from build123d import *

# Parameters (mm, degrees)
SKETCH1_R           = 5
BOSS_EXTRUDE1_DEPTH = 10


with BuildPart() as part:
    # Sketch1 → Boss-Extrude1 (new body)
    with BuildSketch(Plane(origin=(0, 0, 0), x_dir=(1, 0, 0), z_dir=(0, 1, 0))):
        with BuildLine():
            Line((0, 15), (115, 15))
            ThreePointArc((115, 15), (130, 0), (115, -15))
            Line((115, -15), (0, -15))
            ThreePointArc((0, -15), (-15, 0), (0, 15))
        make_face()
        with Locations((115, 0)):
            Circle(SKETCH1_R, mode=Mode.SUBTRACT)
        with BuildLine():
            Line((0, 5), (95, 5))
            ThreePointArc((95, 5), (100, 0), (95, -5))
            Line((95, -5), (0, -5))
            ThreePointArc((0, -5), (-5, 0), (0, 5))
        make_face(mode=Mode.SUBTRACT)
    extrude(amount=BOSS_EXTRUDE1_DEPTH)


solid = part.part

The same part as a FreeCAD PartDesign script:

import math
import FreeCAD as App
import Part
import Sketcher
from FreeCAD import Vector

doc = App.newDocument("Part")
params = doc.addObject("Spreadsheet::Sheet", "Params")
for row, (alias, value) in enumerate([
    ("sketch1_diameter", "10 mm"),
    ("sketch1_radius", "15 mm"),
    ("sketch1_width", "115 mm"),
    ("sketch1_width2", "95 mm"),
    ("pad1_length", "10 mm"),
], start=1):
    params.set(f"A{row}", alias)
    params.set(f"B{row}", "=" + value)
    params.setAlias(f"B{row}", alias)

body = doc.addObject("PartDesign::Body", "Body")

sketch1 = body.newObject("Sketcher::SketchObject", "Sketch")
sketch1.AttachmentSupport = (doc.getObject("XZ_Plane"), [""])
sketch1.MapMode = "FlatFace"
sketch1.addGeometry([
    Part.LineSegment(Vector(115, -15, 0), Vector(0, -15, 0)),
    Part.ArcOfCircle(Part.Circle(Vector(0, 0, 0), Vector(0, 0, 1), 15), math.radians(90), math.radians(270)),
    Part.LineSegment(Vector(0, 15, 0), Vector(115, 15, 0)),
    Part.ArcOfCircle(Part.Circle(Vector(115, 0, 0), Vector(0, 0, 1), 15), math.radians(-90), math.radians(90)),
    Part.Circle(Vector(115, 0, 0), Vector(0, 0, 1), 5),
    Part.LineSegment(Vector(0, -5, 0), Vector(95, -5, 0)),
    Part.ArcOfCircle(Part.Circle(Vector(95, 0, 0), Vector(0, 0, 1), 5), math.radians(-90), math.radians(90)),
    Part.LineSegment(Vector(95, 5, 0), Vector(0, 5, 0)),
    Part.ArcOfCircle(Part.Circle(Vector(0, 0, 0), Vector(0, 0, 1), 5), math.radians(90), math.radians(270)),
], False)
sketch1.addConstraint([
    Sketcher.Constraint("Tangent", 0, 2, 1, 2),
    Sketcher.Constraint("Tangent", 1, 1, 2, 1),
    Sketcher.Constraint("Tangent", 2, 2, 3, 2),
    Sketcher.Constraint("Tangent", 3, 1, 0, 1),
    Sketcher.Constraint("Tangent", 5, 2, 6, 1),
    Sketcher.Constraint("Tangent", 6, 2, 7, 1),
    Sketcher.Constraint("Tangent", 7, 2, 8, 1),
    Sketcher.Constraint("Tangent", 8, 2, 5, 1),
    Sketcher.Constraint("Horizontal", 0),
    Sketcher.Constraint("Horizontal", 2),
    Sketcher.Constraint("Horizontal", 5),
    Sketcher.Constraint("Horizontal", 7),
    Sketcher.Constraint("Coincident", 1, 3, -1, 1),
    Sketcher.Constraint("Coincident", 8, 3, -1, 1),
    Sketcher.Constraint("Coincident", 4, 3, 3, 3),
    Sketcher.Constraint("Equal", 4, 6),
    Sketcher.Constraint("Diameter", 4, 10.0),
    Sketcher.Constraint("Radius", 1, 15.0),
    Sketcher.Constraint("DistanceX", 0, 2, 0, 1, 115.0),
    Sketcher.Constraint("DistanceX", 5, 1, 5, 2, 95.0),
])
sketch1.setExpression("Constraints[16]", "Params.sketch1_diameter")
sketch1.setExpression("Constraints[17]", "Params.sketch1_radius")
sketch1.setExpression("Constraints[18]", "Params.sketch1_width")
sketch1.setExpression("Constraints[19]", "Params.sketch1_width2")
pad1 = body.newObject("PartDesign::Pad", "Pad")
pad1.Profile = sketch1
pad1.setExpression("Length", "Params.pad1_length")
pad1.Reversed = True

doc.recompute()
